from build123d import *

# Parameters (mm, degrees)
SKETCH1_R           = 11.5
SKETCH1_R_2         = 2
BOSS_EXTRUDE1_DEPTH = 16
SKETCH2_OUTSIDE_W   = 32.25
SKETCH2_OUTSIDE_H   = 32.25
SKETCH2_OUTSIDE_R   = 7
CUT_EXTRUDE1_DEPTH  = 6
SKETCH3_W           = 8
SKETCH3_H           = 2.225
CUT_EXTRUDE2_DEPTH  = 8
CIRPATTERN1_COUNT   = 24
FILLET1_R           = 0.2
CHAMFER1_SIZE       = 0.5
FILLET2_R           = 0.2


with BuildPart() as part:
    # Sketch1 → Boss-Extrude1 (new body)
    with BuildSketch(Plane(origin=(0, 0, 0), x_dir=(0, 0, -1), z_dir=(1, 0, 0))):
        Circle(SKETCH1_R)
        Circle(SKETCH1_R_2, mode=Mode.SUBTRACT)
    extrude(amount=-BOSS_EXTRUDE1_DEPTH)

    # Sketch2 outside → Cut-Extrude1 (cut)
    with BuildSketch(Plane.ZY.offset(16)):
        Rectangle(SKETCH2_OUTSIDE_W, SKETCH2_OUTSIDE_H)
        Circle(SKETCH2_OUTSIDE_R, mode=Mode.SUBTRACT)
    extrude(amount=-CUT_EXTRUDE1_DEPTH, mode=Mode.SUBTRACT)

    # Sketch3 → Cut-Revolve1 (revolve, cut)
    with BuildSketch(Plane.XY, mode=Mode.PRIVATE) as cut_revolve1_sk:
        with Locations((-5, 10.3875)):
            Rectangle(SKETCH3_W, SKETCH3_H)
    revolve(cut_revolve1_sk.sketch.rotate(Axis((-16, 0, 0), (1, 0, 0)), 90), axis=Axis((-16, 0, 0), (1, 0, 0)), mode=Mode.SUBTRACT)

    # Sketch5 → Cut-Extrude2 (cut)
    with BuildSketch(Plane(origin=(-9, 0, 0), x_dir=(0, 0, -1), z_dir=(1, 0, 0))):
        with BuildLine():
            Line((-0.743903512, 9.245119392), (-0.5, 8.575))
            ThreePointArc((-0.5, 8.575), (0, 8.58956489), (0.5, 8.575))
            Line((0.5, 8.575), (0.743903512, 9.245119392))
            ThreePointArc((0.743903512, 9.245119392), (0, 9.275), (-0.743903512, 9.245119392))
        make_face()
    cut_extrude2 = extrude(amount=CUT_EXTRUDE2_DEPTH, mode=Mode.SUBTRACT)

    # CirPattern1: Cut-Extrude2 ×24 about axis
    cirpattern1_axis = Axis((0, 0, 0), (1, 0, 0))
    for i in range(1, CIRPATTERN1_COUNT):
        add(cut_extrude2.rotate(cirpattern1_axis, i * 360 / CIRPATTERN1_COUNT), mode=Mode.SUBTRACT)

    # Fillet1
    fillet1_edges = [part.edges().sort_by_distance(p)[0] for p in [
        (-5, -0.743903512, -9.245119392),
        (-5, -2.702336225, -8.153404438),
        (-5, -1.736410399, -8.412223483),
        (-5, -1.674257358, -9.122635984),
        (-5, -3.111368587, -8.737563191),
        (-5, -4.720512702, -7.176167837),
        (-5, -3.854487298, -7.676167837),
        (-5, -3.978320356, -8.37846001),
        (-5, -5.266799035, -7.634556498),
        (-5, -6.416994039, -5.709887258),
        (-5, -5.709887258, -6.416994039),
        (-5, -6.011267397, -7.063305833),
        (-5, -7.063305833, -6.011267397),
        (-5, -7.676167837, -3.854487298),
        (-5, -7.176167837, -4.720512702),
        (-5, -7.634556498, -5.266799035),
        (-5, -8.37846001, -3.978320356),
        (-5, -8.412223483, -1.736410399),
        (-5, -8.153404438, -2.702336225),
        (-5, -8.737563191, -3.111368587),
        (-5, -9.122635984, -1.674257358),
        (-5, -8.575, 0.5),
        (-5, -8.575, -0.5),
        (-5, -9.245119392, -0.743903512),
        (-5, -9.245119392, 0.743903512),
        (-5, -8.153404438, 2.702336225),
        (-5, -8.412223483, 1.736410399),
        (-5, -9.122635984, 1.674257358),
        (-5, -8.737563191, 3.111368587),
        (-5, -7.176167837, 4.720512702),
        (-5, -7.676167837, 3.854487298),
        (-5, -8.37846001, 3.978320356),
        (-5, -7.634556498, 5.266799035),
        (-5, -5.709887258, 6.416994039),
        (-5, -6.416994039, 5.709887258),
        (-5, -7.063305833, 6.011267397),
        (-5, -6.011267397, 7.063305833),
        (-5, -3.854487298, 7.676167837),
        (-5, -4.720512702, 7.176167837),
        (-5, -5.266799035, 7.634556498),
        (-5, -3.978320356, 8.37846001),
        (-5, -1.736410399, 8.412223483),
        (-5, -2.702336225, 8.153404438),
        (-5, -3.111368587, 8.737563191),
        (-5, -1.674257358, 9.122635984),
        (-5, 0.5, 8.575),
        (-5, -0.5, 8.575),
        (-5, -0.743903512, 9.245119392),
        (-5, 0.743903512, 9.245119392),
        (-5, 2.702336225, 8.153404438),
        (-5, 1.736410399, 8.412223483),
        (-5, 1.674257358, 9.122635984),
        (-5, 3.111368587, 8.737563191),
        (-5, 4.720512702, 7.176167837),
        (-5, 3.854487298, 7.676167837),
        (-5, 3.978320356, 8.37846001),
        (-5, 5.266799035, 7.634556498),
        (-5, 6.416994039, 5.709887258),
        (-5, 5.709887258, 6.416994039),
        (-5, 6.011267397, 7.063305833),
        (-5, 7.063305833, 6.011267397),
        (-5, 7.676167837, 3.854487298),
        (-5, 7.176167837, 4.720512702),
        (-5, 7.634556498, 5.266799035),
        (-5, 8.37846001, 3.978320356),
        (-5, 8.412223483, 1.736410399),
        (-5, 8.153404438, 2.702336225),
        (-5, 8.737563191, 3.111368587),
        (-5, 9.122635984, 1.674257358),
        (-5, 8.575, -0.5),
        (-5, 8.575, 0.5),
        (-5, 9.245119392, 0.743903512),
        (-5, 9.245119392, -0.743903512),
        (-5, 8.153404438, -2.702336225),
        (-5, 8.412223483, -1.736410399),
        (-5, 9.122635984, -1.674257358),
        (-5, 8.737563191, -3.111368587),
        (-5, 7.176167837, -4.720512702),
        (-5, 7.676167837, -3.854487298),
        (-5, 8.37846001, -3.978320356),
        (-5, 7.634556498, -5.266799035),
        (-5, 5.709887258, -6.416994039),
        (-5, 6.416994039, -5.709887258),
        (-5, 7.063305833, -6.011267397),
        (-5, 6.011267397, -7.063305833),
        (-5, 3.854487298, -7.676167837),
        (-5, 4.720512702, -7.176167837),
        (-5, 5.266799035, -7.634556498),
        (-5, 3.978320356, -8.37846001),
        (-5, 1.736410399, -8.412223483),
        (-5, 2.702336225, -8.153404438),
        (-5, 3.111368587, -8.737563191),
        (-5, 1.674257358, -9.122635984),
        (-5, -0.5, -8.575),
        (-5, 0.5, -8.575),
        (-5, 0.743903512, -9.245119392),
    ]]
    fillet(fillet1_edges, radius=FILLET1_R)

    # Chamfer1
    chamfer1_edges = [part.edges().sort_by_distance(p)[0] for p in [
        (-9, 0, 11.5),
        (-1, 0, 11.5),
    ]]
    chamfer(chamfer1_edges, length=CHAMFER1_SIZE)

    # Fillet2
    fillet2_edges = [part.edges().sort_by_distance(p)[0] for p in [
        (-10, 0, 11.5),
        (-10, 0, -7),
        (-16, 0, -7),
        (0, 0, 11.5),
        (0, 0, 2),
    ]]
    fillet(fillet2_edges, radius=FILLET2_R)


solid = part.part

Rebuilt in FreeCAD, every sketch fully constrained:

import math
import FreeCAD as App
import Part
import Sketcher

V = App.Vector
Q = App.Units.Quantity


def edges_at(feature, points):
    """Names of the edges that pass closest to the given points."""
    edges = feature.Shape.Edges
    near = lambda p: min(range(len(edges)), key=lambda i: edges[i].distToShape(Part.Vertex(*p))[0])
    return sorted({f"Edge{near(p) + 1}" for p in points})


def add_polygon(sketch, points):
    """Adds a closed chain of lines whose ends are joined by coincident constraints."""
    first, n = sketch.GeometryCount, len(points)
    for a, b in zip(points, points[1:] + points[:1]):
        sketch.addGeometry(Part.LineSegment(App.Vector(*a, 0), App.Vector(*b, 0)), False)
    for i in range(n):
        sketch.addConstraint(Sketcher.Constraint("Coincident", first + i, 2, first + (i + 1) % n, 1))

doc = App.newDocument("Part")
body = doc.addObject("PartDesign::Body", "Body")

sketch1 = body.newObject("Sketcher::SketchObject", "Sketch")
sketch1.AttachmentSupport = (doc.getObject("YZ_Plane"), [""])
sketch1.MapMode = "FlatFace"
sketch1.addGeometry([
    Part.Circle(V(0, 0, 0), V(0, 0, 1), 11.5),
    Part.Circle(V(0, 0, 0), V(0, 0, 1), 2),
], False)
sketch1.addConstraint([
    Sketcher.Constraint("Coincident", 0, 3, -1, 1),
    Sketcher.Constraint("Coincident", 1, 3, -1, 1),
    Sketcher.Constraint("Diameter", 0, 23.0),
    Sketcher.Constraint("Diameter", 1, 4.0),
])
pad1 = body.newObject("PartDesign::Pad", "Pad")
pad1.Profile = sketch1
pad1.Length = 16
pad1.Reversed = True

sketch2 = body.newObject("Sketcher::SketchObject", "Sketch001")
sketch2.AttachmentSupport = (doc.getObject("YZ_Plane"), [""])
sketch2.MapMode = "FlatFace"
sketch2.AttachmentOffset = App.Placement(V(0, 0, -16), App.Rotation())
add_polygon(sketch2, [(16.125, -16.125), (-16.125, -16.125), (-16.125, 16.125), (16.125, 16.125)])
sketch2.addGeometry(Part.Circle(V(0, 0, 0), V(0, 0, 1), 7), False)
sketch2.addConstraint([
    Sketcher.Constraint("Horizontal", 0),
    Sketcher.Constraint("Vertical", 1),
    Sketcher.Constraint("Horizontal", 2),
    Sketcher.Constraint("Vertical", 3),
    Sketcher.Constraint("Coincident", 4, 3, -1, 1),
    Sketcher.Constraint("Symmetric", 0, 2, 2, 2, -1, 1),
    Sketcher.Constraint("Equal", 2, 1),
    Sketcher.Constraint("Diameter", 4, 14.0),
    Sketcher.Constraint("DistanceX", 0, 2, 0, 1, 32.25),
])
pocket1 = body.newObject("PartDesign::Pocket", "Pocket")
pocket1.Profile = sketch2
pocket1.Length = 6
pocket1.Reversed = True

sketch3 = body.newObject("Sketcher::SketchObject", "Sketch002")
sketch3.AttachmentSupport = (doc.getObject("XY_Plane"), [""])
sketch3.MapMode = "FlatFace"
add_polygon(sketch3, [(-9, 11.5), (-9, 9.275), (-1, 9.275), (-1, 11.5)])
sketch3.addConstraint([
    Sketcher.Constraint("Vertical", 0),
    Sketcher.Constraint("Horizontal", 1),
    Sketcher.Constraint("Vertical", 2),
    Sketcher.Constraint("Horizontal", 3),
    Sketcher.Constraint("DistanceX", 1, 1, 1, 2, 8.0),
    Sketcher.Constraint("DistanceX", 0, 2, -1, 1, 9.0),
    Sketcher.Constraint("DistanceY", -1, 1, 2, 2, 11.5),
    Sketcher.Constraint("DistanceY", 0, 2, 0, 1, 2.225),
])
groove = body.newObject("PartDesign::Groove", "Groove")
groove.Profile = sketch3
groove.ReferenceAxis = (sketch3, ["H_Axis"])
groove.Angle = 360

sketch4 = body.newObject("Sketcher::SketchObject", "Sketch003")
sketch4.AttachmentSupport = (doc.getObject("YZ_Plane"), [""])
sketch4.MapMode = "FlatFace"
sketch4.AttachmentOffset = App.Placement(V(0, 0, -9), App.Rotation())
sketch4.addGeometry([
    Part.LineSegment(V(9.245119, 0.743904, 0), V(8.575, 0.5, 0)),
    Part.ArcOfCircle(Part.Circle(V(0, 0, 0), V(0, 0, 1), 8.589565), math.radians(-3.337083), math.radians(3.337083)),
    Part.LineSegment(V(8.575, -0.5, 0), V(9.245119, -0.743904, 0)),
    Part.ArcOfCircle(Part.Circle(V(0, 0, 0), V(0, 0, 1), 9.275), math.radians(-4.600362), math.radians(4.600362)),
], False)
sketch4.addConstraint([
    Sketcher.Constraint("Coincident", 0, 2, 1, 2),
    Sketcher.Constraint("Coincident", 1, 1, 2, 1),
    Sketcher.Constraint("Coincident", 2, 2, 3, 1),
    Sketcher.Constraint("Coincident", 3, 2, 0, 1),
    Sketcher.Constraint("Coincident", 1, 3, -1, 1),
    Sketcher.Constraint("Coincident", 3, 3, -1, 1),
    Sketcher.Constraint("Vertical", 0, 2, 1, 1),
    Sketcher.Constraint("Vertical", 2, 2, 3, 2),
    Sketcher.Constraint("Angle", 0, Q("-160 deg")),
    Sketcher.Constraint("Radius", 3, 9.275),
    Sketcher.Constraint("DistanceY", 1, 1, 0, 2, 1.0),
    Sketcher.Constraint("DistanceX", -1, 1, 0, 2, 8.575),
])
pocket2 = body.newObject("PartDesign::Pocket", "Pocket001")
pocket2.Profile = sketch4
pocket2.Length = 8
pocket2.Reversed = True
doc.recompute()

polarpattern = body.newObject("PartDesign::PolarPattern", "PolarPattern")
polarpattern.Originals = [pocket2]
polarpattern.Axis = (doc.getObject("X_Axis"), [""])
polarpattern.Angle = 360
polarpattern.Occurrences = 24
body.Tip = polarpattern
doc.recompute()

fillet = body.newObject("PartDesign::Fillet", "Fillet")
fillet.Base = (polarpattern, edges_at(polarpattern, [
    (-5, -0.744, -9.245),
    (-5, -2.702, -8.153),
    (-5, -1.736, -8.412),
    (-5, -1.674, -9.123),
    (-5, -3.111, -8.738),
    (-5, -4.721, -7.176),
    (-5, -3.854, -7.676),
    (-5, -3.978, -8.378),
    (-5, -5.267, -7.635),
    (-5, -6.417, -5.71),
    (-5, -5.71, -6.417),
    (-5, -6.011, -7.063),
    (-5, -7.063, -6.011),
    (-5, -7.676, -3.854),
    (-5, -7.176, -4.721),
    (-5, -7.635, -5.267),
    (-5, -8.378, -3.978),
    (-5, -8.412, -1.736),
    (-5, -8.153, -2.702),
    (-5, -8.738, -3.111),
    (-5, -9.123, -1.674),
    (-5, -8.575, 0.5),
    (-5, -8.575, -0.5),
    (-5, -9.245, -0.744),
    (-5, -9.245, 0.744),
    (-5, -8.153, 2.702),
    (-5, -8.412, 1.736),
    (-5, -9.123, 1.674),
    (-5, -8.738, 3.111),
    (-5, -7.176, 4.721),
    (-5, -7.676, 3.854),
    (-5, -8.378, 3.978),
    (-5, -7.635, 5.267),
    (-5, -5.71, 6.417),
    (-5, -6.417, 5.71),
    (-5, -7.063, 6.011),
    (-5, -6.011, 7.063),
    (-5, -3.854, 7.676),
    (-5, -4.721, 7.176),
    (-5, -5.267, 7.635),
    (-5, -3.978, 8.378),
    (-5, -1.736, 8.412),
    (-5, -2.702, 8.153),
    (-5, -3.111, 8.738),
    (-5, -1.674, 9.123),
    (-5, 0.5, 8.575),
    (-5, -0.5, 8.575),
    (-5, -0.744, 9.245),
    (-5, 0.744, 9.245),
    (-5, 2.702, 8.153),
    (-5, 1.736, 8.412),
    (-5, 1.674, 9.123),
    (-5, 3.111, 8.738),
    (-5, 4.721, 7.176),
    (-5, 3.854, 7.676),
    (-5, 3.978, 8.378),
    (-5, 5.267, 7.635),
    (-5, 6.417, 5.71),
    (-5, 5.71, 6.417),
    (-5, 6.011, 7.063),
    (-5, 7.063, 6.011),
    (-5, 7.676, 3.854),
    (-5, 7.176, 4.721),
    (-5, 7.635, 5.267),
    (-5, 8.378, 3.978),
    (-5, 8.412, 1.736),
    (-5, 8.153, 2.702),
    (-5, 8.738, 3.111),
    (-5, 9.123, 1.674),
    (-5, 8.575, -0.5),
    (-5, 8.575, 0.5),
    (-5, 9.245, 0.744),
    (-5, 9.245, -0.744),
    (-5, 8.153, -2.702),
    (-5, 8.412, -1.736),
    (-5, 9.123, -1.674),
    (-5, 8.738, -3.111),
    (-5, 7.176, -4.721),
    (-5, 7.676, -3.854),
    (-5, 8.378, -3.978),
    (-5, 7.635, -5.267),
    (-5, 5.71, -6.417),
    (-5, 6.417, -5.71),
    (-5, 7.063, -6.011),
    (-5, 6.011, -7.063),
    (-5, 3.854, -7.676),
    (-5, 4.721, -7.176),
    (-5, 5.267, -7.635),
    (-5, 3.978, -8.378),
    (-5, 1.736, -8.412),
    (-5, 2.702, -8.153),
    (-5, 3.111, -8.738),
    (-5, 1.674, -9.123),
    (-5, -0.5, -8.575),
    (-5, 0.5, -8.575),
    (-5, 0.744, -9.245),
]))
fillet.Radius = 0.2
doc.recompute()

chamfer = body.newObject("PartDesign::Chamfer", "Chamfer")
chamfer.Base = (fillet, edges_at(fillet, [(-9, 0, 11.5), (-1, 0, 11.5)]))
chamfer.Size = 0.5
doc.recompute()

fillet2 = body.newObject("PartDesign::Fillet", "Fillet001")
fillet2.Base = (chamfer, edges_at(chamfer, [
    (-10, 0, 11.5),
    (-10, 0, -7),
    (-16, 0, -7),
    (0, 0, 11.5),
    (0, 0, 2),
]))
fillet2.Radius = 0.2

doc.recompute()
